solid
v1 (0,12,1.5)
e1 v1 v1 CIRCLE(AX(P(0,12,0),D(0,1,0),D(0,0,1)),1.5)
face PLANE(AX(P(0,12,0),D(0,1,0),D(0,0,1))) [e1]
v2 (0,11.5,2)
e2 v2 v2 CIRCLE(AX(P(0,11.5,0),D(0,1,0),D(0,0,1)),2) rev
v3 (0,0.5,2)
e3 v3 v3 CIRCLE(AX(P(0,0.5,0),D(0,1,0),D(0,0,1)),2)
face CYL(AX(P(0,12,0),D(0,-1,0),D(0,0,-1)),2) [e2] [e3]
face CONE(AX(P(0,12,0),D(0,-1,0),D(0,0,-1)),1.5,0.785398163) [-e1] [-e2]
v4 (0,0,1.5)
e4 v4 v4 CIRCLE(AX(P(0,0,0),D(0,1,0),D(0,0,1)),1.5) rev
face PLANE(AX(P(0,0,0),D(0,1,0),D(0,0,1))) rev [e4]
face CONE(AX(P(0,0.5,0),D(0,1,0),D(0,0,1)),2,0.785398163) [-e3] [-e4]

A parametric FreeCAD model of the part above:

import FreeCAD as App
import Part
import Sketcher
Q = App.Units.Quantity


def edges_at(feature, points):
    """Names of the edges that pass closest to the given points."""
    edges = feature.Shape.Edges
    near = lambda p: min(range(len(edges)), key=lambda i: edges[i].distToShape(Part.Vertex(*p))[0])
    return sorted({f"Edge{near(p) + 1}" for p in points})

doc = App.newDocument("Part")
body = doc.addObject("PartDesign::Body", "Body")

sketch1 = doc.addObject("Sketcher::SketchObject", "Sketch")
body.addObject(sketch1)
sketch1.AttachmentSupport = (doc.XZ_Plane, [""])
sketch1.MapMode = "FlatFace"
sketch1.addGeometry(Part.Circle(App.Vector(0, 0, 0), App.Vector(0, 0, 1), 2), False)
sketch1.addConstraint([
    Sketcher.Constraint("Coincident", 0, 3, -1, 1),
    Sketcher.Constraint("Diameter", 0, Q("4 mm")),
])
pad1 = doc.addObject("PartDesign::Pad", "Pad")
body.addObject(pad1)
pad1.Profile = sketch1
pad1.Length = 12
pad1.Reversed = True
doc.recompute()

chamfer = doc.addObject("PartDesign::Chamfer", "Chamfer")
body.addObject(chamfer)
chamfer.Base = (pad1, edges_at(pad1, [(-2, 0, 0), (-2, 12, 0)]))
chamfer.Size = 0.5

doc.recompute()
